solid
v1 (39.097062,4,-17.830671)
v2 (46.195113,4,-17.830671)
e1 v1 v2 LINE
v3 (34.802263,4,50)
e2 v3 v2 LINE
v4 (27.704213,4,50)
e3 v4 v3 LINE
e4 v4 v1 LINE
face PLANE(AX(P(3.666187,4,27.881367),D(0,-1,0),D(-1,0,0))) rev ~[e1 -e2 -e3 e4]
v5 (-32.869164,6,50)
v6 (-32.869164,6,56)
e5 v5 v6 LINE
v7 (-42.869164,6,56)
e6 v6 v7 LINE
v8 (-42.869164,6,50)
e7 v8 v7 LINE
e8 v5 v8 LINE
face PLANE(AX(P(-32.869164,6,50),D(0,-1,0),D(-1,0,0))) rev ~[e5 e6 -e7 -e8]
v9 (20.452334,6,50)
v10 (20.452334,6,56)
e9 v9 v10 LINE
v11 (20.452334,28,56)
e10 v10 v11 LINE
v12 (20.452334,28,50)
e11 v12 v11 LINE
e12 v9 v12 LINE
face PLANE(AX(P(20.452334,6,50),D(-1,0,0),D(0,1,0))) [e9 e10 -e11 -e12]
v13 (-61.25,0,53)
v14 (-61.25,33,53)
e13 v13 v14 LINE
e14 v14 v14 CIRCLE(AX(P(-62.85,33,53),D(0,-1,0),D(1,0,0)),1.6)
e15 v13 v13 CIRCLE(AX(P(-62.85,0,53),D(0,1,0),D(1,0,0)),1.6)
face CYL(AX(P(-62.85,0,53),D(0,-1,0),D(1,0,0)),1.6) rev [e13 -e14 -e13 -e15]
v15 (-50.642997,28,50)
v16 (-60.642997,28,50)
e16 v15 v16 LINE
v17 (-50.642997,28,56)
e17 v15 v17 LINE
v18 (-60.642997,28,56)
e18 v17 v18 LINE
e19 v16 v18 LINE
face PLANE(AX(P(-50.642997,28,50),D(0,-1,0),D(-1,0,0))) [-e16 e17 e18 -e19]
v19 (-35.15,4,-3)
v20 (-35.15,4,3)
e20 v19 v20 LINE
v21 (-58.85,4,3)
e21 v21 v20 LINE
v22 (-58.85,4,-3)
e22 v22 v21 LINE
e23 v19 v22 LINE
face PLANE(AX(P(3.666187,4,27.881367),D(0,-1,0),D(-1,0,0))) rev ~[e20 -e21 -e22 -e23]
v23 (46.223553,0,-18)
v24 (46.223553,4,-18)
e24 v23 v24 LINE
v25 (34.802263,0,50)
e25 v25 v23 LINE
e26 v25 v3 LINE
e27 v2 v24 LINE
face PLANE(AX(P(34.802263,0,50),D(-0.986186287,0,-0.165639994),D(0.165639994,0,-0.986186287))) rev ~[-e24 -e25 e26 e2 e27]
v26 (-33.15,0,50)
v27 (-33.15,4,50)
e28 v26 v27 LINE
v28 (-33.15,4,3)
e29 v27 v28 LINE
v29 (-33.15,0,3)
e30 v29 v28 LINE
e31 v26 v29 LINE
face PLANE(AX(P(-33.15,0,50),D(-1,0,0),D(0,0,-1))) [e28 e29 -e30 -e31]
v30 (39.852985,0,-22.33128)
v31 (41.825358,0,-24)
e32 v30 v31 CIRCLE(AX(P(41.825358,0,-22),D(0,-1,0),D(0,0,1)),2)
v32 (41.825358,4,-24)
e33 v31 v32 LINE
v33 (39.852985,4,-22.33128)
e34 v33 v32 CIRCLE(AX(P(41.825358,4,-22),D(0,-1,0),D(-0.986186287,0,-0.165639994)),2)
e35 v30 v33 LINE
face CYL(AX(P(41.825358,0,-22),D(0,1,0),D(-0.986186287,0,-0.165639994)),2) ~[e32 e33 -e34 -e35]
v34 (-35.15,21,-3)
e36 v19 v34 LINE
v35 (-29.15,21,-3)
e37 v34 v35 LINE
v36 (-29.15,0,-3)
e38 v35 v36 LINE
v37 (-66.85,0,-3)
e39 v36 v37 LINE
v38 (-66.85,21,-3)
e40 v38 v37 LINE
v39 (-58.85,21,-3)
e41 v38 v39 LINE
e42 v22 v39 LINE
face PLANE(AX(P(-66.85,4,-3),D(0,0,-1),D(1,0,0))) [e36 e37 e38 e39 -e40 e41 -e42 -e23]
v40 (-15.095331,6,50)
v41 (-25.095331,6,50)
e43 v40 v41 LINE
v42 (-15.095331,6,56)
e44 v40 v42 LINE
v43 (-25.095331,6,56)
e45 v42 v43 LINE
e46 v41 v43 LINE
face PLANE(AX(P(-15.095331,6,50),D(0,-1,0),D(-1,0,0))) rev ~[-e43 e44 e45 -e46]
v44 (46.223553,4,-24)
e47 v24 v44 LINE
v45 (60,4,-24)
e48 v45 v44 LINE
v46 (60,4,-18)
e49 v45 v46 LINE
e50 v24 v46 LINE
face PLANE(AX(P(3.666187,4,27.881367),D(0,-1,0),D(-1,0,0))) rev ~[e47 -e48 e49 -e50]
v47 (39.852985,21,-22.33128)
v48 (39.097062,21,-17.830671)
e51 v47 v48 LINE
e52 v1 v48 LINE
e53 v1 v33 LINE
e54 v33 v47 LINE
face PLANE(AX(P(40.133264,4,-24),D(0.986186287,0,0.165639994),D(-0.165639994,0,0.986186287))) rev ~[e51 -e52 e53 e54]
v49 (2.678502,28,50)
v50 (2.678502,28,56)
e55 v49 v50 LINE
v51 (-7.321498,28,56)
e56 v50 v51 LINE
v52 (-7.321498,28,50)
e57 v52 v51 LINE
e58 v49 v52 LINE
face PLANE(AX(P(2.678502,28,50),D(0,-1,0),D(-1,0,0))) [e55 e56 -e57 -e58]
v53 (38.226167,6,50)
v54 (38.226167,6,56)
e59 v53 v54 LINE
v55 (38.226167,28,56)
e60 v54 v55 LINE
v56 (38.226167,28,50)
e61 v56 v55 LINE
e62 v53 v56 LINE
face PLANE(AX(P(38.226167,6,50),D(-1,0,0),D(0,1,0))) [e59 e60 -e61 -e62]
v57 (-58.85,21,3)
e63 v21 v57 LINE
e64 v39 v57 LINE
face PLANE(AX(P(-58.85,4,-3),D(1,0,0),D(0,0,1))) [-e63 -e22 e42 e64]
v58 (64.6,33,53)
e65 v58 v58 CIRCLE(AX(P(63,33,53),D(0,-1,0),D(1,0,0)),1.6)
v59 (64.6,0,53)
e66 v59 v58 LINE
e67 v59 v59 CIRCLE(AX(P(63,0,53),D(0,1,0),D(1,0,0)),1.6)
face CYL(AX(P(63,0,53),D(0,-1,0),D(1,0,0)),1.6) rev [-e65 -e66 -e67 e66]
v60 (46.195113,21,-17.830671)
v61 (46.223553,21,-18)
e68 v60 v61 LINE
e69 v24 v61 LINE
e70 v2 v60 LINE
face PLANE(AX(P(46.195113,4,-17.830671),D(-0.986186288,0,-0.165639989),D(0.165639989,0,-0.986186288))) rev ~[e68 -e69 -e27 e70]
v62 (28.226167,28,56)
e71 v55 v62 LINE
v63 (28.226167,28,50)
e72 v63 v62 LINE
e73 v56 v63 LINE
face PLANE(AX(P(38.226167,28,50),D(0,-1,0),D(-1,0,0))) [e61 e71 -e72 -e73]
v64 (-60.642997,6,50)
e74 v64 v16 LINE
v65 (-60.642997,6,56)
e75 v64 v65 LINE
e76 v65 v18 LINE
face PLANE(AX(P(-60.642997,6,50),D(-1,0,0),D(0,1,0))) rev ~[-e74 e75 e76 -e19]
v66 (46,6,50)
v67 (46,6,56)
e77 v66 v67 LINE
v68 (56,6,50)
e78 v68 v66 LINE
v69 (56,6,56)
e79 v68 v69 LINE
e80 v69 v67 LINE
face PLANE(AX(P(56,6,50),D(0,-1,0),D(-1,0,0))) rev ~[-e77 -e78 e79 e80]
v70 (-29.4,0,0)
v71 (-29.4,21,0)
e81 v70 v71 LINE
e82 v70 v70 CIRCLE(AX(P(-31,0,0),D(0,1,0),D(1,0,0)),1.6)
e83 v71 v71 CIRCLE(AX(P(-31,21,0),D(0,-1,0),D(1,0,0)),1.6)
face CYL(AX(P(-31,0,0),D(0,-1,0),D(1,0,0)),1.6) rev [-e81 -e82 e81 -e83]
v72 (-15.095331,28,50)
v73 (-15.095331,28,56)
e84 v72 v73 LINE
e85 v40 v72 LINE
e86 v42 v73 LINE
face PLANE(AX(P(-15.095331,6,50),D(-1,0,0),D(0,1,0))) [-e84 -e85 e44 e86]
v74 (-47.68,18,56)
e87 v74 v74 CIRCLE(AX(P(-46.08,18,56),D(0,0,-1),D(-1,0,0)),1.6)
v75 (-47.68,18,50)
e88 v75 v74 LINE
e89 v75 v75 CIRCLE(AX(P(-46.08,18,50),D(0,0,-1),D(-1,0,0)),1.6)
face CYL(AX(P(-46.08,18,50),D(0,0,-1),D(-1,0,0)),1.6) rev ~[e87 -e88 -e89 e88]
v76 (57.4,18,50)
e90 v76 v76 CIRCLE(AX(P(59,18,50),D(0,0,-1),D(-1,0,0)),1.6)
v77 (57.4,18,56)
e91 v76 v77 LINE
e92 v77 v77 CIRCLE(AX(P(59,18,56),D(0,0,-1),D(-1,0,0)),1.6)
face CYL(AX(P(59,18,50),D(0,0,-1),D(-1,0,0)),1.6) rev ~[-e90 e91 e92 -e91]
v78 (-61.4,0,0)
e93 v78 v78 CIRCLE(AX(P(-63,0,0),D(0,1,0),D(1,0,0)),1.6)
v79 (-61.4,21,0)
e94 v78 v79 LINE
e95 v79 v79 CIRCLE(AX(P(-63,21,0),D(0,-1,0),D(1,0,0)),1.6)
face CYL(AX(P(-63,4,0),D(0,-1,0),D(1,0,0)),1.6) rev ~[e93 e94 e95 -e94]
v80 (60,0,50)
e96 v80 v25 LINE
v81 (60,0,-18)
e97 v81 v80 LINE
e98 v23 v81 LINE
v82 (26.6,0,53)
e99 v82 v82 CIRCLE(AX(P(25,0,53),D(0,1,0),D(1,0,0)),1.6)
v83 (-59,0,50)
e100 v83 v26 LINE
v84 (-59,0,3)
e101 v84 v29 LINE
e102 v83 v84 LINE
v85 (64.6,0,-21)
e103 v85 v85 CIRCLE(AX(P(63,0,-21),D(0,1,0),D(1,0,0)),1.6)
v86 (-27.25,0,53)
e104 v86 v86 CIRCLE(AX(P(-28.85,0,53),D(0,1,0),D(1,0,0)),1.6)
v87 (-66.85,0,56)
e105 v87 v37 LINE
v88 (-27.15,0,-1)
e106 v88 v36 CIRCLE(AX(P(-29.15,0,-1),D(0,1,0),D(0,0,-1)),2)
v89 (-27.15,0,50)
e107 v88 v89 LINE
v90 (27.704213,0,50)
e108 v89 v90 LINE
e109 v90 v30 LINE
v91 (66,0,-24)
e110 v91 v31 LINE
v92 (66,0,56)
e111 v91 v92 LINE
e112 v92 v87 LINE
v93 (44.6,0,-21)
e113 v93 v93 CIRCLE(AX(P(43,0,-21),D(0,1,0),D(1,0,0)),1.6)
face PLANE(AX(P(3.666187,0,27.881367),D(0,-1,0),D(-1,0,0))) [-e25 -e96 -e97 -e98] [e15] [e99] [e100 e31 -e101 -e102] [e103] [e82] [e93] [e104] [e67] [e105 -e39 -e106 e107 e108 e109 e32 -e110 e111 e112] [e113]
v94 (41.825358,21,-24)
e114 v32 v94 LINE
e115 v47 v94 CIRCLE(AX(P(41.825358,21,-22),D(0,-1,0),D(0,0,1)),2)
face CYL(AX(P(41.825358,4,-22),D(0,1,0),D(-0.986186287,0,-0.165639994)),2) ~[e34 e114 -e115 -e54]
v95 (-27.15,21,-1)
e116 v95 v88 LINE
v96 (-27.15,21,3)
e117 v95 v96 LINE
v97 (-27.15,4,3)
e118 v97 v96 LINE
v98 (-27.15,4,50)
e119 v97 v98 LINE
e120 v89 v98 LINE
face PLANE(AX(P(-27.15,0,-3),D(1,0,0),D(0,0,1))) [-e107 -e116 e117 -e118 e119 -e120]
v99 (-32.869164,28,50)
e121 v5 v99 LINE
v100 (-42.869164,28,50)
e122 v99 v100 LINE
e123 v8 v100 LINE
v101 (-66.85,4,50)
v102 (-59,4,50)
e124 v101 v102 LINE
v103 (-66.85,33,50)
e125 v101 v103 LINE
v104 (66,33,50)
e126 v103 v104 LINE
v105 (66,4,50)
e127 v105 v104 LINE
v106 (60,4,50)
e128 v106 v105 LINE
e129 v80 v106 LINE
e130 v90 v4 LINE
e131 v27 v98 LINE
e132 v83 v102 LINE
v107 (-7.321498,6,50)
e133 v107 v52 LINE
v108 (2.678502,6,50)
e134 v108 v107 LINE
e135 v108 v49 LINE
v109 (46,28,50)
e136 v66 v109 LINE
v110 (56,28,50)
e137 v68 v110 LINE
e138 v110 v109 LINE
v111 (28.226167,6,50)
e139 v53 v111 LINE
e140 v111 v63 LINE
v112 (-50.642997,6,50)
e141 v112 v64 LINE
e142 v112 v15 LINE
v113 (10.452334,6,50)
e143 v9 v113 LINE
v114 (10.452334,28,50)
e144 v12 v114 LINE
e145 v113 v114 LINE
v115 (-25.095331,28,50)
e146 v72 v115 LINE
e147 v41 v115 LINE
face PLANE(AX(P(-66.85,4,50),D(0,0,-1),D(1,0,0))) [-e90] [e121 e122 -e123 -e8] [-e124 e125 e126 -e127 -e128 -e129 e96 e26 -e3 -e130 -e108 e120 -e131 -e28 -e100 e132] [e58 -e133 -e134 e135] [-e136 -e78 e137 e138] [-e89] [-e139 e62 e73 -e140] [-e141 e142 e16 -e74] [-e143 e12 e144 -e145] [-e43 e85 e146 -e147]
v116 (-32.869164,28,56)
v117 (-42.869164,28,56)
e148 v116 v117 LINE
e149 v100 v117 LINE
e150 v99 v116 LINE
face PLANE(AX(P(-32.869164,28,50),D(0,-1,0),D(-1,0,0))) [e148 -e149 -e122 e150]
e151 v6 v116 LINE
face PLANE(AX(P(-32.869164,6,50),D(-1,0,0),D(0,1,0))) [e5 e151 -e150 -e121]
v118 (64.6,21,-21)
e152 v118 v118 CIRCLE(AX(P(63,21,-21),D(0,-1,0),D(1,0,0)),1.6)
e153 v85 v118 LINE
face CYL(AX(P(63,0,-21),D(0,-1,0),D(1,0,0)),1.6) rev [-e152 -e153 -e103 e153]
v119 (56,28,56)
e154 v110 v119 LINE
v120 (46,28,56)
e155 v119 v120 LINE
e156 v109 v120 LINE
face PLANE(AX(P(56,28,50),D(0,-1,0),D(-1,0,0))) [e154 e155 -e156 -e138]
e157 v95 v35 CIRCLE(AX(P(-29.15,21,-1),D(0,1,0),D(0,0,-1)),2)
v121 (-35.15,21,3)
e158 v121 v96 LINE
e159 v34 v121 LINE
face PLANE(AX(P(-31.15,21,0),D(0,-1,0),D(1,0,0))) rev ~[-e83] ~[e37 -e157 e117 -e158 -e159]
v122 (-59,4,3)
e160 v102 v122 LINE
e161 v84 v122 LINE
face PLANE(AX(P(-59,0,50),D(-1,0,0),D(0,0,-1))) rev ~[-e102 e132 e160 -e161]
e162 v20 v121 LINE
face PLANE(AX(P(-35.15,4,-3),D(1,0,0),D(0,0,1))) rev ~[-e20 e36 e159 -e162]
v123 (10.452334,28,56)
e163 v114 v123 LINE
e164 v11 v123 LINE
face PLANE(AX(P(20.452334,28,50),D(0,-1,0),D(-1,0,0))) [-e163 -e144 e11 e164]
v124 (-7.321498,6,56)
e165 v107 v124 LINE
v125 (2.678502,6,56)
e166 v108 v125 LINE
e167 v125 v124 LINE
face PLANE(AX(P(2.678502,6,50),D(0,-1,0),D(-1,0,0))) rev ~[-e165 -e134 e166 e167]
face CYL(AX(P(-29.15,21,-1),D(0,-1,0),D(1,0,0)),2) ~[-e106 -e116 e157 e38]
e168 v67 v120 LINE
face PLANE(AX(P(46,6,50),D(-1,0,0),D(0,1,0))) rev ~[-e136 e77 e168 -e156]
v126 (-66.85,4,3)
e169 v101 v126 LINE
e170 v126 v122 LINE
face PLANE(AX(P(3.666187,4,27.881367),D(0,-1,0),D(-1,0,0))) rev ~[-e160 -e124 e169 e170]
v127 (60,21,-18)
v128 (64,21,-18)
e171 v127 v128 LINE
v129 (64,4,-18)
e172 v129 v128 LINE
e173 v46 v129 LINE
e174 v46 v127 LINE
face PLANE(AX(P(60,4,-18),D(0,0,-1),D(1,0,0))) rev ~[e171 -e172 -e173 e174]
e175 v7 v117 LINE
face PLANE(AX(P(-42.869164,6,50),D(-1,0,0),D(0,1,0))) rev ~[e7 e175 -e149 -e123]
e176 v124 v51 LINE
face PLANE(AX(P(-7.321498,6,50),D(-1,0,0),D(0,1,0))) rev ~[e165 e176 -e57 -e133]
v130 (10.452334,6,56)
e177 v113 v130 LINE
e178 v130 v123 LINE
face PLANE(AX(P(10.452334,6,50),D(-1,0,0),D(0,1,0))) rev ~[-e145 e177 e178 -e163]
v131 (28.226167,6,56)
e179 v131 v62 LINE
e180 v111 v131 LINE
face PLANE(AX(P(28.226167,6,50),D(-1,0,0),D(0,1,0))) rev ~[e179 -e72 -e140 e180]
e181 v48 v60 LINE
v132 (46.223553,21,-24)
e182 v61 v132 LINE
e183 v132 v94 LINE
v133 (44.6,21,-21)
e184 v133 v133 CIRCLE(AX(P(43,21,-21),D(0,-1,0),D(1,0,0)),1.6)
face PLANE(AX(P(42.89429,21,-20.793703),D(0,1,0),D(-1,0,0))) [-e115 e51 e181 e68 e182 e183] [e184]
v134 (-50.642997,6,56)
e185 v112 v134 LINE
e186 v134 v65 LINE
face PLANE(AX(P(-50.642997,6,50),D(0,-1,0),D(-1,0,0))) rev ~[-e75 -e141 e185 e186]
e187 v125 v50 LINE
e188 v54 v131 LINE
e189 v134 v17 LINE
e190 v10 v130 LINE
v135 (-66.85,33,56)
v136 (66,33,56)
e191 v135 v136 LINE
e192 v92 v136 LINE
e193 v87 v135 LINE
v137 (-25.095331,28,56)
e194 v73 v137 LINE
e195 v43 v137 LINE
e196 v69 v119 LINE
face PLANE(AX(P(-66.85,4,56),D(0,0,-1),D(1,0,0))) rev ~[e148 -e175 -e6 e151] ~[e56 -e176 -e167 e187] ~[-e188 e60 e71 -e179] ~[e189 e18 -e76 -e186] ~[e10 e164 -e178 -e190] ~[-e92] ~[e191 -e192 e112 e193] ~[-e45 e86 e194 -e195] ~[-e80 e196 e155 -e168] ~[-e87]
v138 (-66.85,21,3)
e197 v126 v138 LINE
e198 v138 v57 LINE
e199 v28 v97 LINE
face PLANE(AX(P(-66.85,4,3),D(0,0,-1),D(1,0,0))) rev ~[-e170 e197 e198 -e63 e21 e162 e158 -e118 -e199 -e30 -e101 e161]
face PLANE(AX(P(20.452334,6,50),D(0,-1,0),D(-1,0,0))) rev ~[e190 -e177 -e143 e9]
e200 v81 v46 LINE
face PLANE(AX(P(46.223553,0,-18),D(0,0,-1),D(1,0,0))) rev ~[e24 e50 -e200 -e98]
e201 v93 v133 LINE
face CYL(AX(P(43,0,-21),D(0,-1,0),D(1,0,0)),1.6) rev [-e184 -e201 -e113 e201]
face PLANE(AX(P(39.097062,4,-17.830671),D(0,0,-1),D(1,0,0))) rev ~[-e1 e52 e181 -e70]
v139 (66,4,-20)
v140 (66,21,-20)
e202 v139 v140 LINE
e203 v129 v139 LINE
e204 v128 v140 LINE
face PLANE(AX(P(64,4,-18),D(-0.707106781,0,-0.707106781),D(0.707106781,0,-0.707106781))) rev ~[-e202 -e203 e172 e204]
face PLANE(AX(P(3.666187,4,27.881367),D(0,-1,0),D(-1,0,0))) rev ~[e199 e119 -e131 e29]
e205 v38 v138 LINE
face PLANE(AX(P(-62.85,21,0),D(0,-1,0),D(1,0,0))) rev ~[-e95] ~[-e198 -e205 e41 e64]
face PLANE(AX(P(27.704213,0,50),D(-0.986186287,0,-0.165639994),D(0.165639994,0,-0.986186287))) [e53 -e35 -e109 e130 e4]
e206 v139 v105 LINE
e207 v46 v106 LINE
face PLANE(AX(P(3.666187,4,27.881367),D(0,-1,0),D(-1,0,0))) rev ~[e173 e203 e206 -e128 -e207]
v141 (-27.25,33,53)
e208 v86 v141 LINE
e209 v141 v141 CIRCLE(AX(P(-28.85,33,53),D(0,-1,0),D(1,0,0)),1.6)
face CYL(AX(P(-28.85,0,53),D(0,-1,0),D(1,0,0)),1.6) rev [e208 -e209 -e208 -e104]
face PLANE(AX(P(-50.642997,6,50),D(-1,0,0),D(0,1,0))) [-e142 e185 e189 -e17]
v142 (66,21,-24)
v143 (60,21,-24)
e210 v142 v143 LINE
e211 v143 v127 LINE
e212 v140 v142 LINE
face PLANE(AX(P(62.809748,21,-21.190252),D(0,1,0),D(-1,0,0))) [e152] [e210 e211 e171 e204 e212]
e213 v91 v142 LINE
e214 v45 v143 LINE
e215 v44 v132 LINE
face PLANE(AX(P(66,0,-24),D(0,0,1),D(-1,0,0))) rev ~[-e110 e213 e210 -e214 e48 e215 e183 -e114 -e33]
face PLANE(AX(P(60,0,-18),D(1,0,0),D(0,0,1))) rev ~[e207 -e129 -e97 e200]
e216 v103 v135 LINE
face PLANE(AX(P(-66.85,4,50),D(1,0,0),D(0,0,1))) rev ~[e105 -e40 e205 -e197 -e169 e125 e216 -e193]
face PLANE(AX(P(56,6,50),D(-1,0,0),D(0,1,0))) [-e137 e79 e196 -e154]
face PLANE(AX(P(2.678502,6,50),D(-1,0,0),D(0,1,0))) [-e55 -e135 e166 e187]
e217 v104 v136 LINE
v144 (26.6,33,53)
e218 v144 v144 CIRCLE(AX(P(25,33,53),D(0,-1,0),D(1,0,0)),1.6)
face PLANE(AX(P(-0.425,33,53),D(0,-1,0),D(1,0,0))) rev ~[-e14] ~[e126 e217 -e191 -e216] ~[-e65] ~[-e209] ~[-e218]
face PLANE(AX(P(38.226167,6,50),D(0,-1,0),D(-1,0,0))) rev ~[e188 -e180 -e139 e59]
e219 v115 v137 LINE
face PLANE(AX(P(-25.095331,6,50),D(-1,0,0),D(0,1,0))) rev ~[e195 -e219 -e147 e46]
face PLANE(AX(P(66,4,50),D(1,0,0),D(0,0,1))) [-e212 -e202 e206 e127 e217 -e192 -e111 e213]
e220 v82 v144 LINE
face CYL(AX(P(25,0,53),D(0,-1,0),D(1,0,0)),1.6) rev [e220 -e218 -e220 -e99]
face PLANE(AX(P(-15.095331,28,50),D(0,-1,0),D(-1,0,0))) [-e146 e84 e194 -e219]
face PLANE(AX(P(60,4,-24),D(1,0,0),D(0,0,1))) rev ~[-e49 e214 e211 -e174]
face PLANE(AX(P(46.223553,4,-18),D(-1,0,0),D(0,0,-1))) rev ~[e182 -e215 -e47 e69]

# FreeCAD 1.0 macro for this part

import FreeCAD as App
import Part
import Sketcher

V = App.Vector
Q = App.Units.Quantity


def edges_at(feature, points):
    """Names of the edges that pass closest to the given points."""
    edges = feature.Shape.Edges
    near = lambda p: min(range(len(edges)), key=lambda i: edges[i].distToShape(Part.Vertex(*p))[0])
    return sorted({f"Edge{near(p) + 1}" for p in points})

doc = App.newDocument("Part")
body = doc.addObject("PartDesign::Body", "Body")

# Sketch on XZ plane
sketch1 = body.newObject("Sketcher::SketchObject", "Sketch")
sketch1.AttachmentSupport = (doc.getObject("XZ_Plane"), [""])
sketch1.MapMode = "FlatFace"
sketch1.addGeometry(Part.LineSegment(V(66, 56, 0), V(66, -24, 0)), False)
sketch1.addGeometry(Part.LineSegment(V(66, -24, 0), V(40.1, -24, 0)), False)
sketch1.addGeometry(Part.LineSegment(V(40.1, -24, 0), V(27.7, 50, 0)), False)
sketch1.addGeometry(Part.LineSegment(V(27.7, 50, 0), V(-27.1, 50, 0)), False)
sketch1.addGeometry(Part.LineSegment(V(-27.1, 50, 0), V(-27.1, -3, 0)), False)
sketch1.addGeometry(Part.LineSegment(V(-27.1, -3, 0), V(-66.8, -3, 0)), False)
sketch1.addGeometry(Part.LineSegment(V(-66.8, -3, 0), V(-66.8, 56, 0)), False)
sketch1.addGeometry(Part.LineSegment(V(-66.8, 56, 0), V(66, 56, 0)), False)
sketch1.addGeometry(Part.LineSegment(V(60, -18, 0), V(60, 50, 0)), False)
sketch1.addGeometry(Part.LineSegment(V(60, 50, 0), V(34.8, 50, 0)), False)
sketch1.addGeometry(Part.LineSegment(V(34.8, 50, 0), V(46.2, -18, 0)), False)
sketch1.addGeometry(Part.LineSegment(V(46.2, -18, 0), V(60, -18, 0)), False)
sketch1.addGeometry(Part.LineSegment(V(-59, 50, 0), V(-59, 3, 0)), False)
sketch1.addGeometry(Part.LineSegment(V(-59, 3, 0), V(-33.1, 3, 0)), False)
sketch1.addGeometry(Part.LineSegment(V(-33.1, 3, 0), V(-33.1, 50, 0)), False)
sketch1.addGeometry(Part.LineSegment(V(-33.1, 50, 0), V(-59, 50, 0)), False)
sketch1.addGeometry(Part.Circle(V(63, -21, 0), V(0, 0, 1), 1.6), False)
sketch1.addGeometry(Part.Circle(V(43, -21, 0), V(0, 0, 1), 1.6), False)
sketch1.addGeometry(Part.Circle(V(-31, 0, 0), V(0, 0, 1), 1.6), False)
sketch1.addGeometry(Part.Circle(V(-63, 0, 0), V(0, 0, 1), 1.6), False)
sketch1.addConstraint(Sketcher.Constraint("Coincident", 0, 2, 1, 1))
sketch1.addConstraint(Sketcher.Constraint("Coincident", 1, 2, 2, 1))
sketch1.addConstraint(Sketcher.Constraint("Coincident", 2, 2, 3, 1))
sketch1.addConstraint(Sketcher.Constraint("Coincident", 3, 2, 4, 1))
sketch1.addConstraint(Sketcher.Constraint("Coincident", 4, 2, 5, 1))
sketch1.addConstraint(Sketcher.Constraint("Coincident", 5, 2, 6, 1))
sketch1.addConstraint(Sketcher.Constraint("Coincident", 6, 2, 7, 1))
sketch1.addConstraint(Sketcher.Constraint("Coincident", 7, 2, 0, 1))
sketch1.addConstraint(Sketcher.Constraint("Coincident", 8, 2, 9, 1))
sketch1.addConstraint(Sketcher.Constraint("Coincident", 9, 2, 10, 1))
sketch1.addConstraint(Sketcher.Constraint("Coincident", 10, 2, 11, 1))
sketch1.addConstraint(Sketcher.Constraint("Coincident", 11, 2, 8, 1))
sketch1.addConstraint(Sketcher.Constraint("Coincident", 12, 2, 13, 1))
sketch1.addConstraint(Sketcher.Constraint("Coincident", 13, 2, 14, 1))
sketch1.addConstraint(Sketcher.Constraint("Coincident", 14, 2, 15, 1))
sketch1.addConstraint(Sketcher.Constraint("Coincident", 15, 2, 12, 1))
sketch1.addConstraint(Sketcher.Constraint("Vertical", 0))
sketch1.addConstraint(Sketcher.Constraint("Horizontal", 1))
sketch1.addConstraint(Sketcher.Constraint("Horizontal", 3))
sketch1.addConstraint(Sketcher.Constraint("Vertical", 4))
sketch1.addConstraint(Sketcher.Constraint("Horizontal", 5))
sketch1.addConstraint(Sketcher.Constraint("Vertical", 6))
sketch1.addConstraint(Sketcher.Constraint("Horizontal", 7))
sketch1.addConstraint(Sketcher.Constraint("Vertical", 8))
sketch1.addConstraint(Sketcher.Constraint("Horizontal", 9))
sketch1.addConstraint(Sketcher.Constraint("Horizontal", 11))
sketch1.addConstraint(Sketcher.Constraint("Vertical", 12))
sketch1.addConstraint(Sketcher.Constraint("Horizontal", 13))
sketch1.addConstraint(Sketcher.Constraint("Vertical", 14))
sketch1.addConstraint(Sketcher.Constraint("Horizontal", 15))
sketch1.addConstraint(Sketcher.Constraint("Equal", 16, 17))
sketch1.addConstraint(Sketcher.Constraint("Equal", 17, 18))
sketch1.addConstraint(Sketcher.Constraint("Equal", 18, 19))
sketch1.addConstraint(Sketcher.Constraint("PointOnObject", 18, 3, -1))
sketch1.addConstraint(Sketcher.Constraint("PointOnObject", 19, 3, -1))
sketch1.addConstraint(Sketcher.Constraint("Parallel", 2, 10))
sketch1.addConstraint(Sketcher.Constraint("Horizontal", 16, 3, 17, 3))
sketch1.addConstraint(Sketcher.Constraint("Horizontal", 3, 2, 8, 2))
sketch1.addConstraint(Sketcher.Constraint("Horizontal", 9, 2, 14, 2))
sketch1.addConstraint(Sketcher.Constraint("Diameter", 16, Q("3.2 mm")))
sketch1.addConstraint(Sketcher.Constraint("DistanceY", 0, 2, 0, 1, Q("80 mm")))
sketch1.addConstraint(Sketcher.Constraint("DistanceY", 4, 2, 4, 1, Q("53 mm")))
sketch1.addConstraint(Sketcher.Constraint("DistanceY", 6, 1, 6, 2, Q("59 mm")))
sketch1.addConstraint(Sketcher.Constraint("DistanceY", 8, 1, 8, 2, Q("68 mm")))
sketch1.addConstraint(Sketcher.Constraint("DistanceY", 12, 2, 12, 1, Q("47 mm")))
sketch1.addConstraint(Sketcher.Constraint("DistanceX", 5, 2, 5, 1, Q("39.7 mm")))
sketch1.addConstraint(Sketcher.Constraint("DistanceX", -1, 1, 16, 3, Q("63 mm")))
sketch1.addConstraint(Sketcher.Constraint("DistanceY", 16, 3, -1, 1, Q("21 mm")))
sketch1.addConstraint(Sketcher.Constraint("DistanceX", -1, 1, 17, 3, Q("43 mm")))
sketch1.addConstraint(Sketcher.Constraint("DistanceX", 18, 3, -1, 1, Q("31 mm")))
sketch1.addConstraint(Sketcher.Constraint("DistanceX", 19, 3, -1, 1, Q("63 mm")))
sketch1.addConstraint(Sketcher.Constraint("DistanceX", -1, 1, 0, 2, Q("66 mm")))
sketch1.addConstraint(Sketcher.Constraint("DistanceY", 0, 2, -1, 1, Q("24 mm")))
sketch1.addConstraint(Sketcher.Constraint("DistanceX", -1, 1, 8, 2, Q("60 mm")))
sketch1.addConstraint(Sketcher.Constraint("DistanceX", 12, 2, -1, 1, Q("59 mm")))
sketch1.addConstraint(Sketcher.Constraint("DistanceX", 13, 2, 4, 2, Q("6 mm")))
sketch1.addConstraint(Sketcher.Constraint("DistanceX", 7, 1, 7, 2, Q("132.85 mm")))
sketch1.addConstraint(Sketcher.Constraint("Distance", 10, Q("68.95249 mm")))
sketch1.addConstraint(Sketcher.Constraint("DistanceX", 1, 2, 1, 1, Q("25.866736 mm")))
sketch1.addConstraint(Sketcher.Constraint("DistanceX", 9, 2, 9, 1, Q("25.197737 mm")))
pad1 = body.newObject("PartDesign::Pad", "Pad")
pad1.Profile = sketch1
pad1.Length = 4
pad1.Reversed = True

# Sketch on XZ plane
sketch2 = body.newObject("Sketcher::SketchObject", "Sketch001")
sketch2.AttachmentSupport = (doc.getObject("XZ_Plane"), [""])
sketch2.MapMode = "FlatFace"
sketch2.AttachmentOffset = App.Placement(V(0, 0, -4), App.Rotation())
sketch2.addGeometry(Part.LineSegment(V(-66.85, 3, 0), V(-66.85, -3, 0)), False)
sketch2.addGeometry(Part.LineSegment(V(-66.85, -3, 0), V(-58.85, -3, 0)), False)
sketch2.addGeometry(Part.LineSegment(V(-58.85, -3, 0), V(-58.85, 3, 0)), False)
sketch2.addGeometry(Part.LineSegment(V(-58.85, 3, 0), V(-66.85, 3, 0)), False)
sketch2.addGeometry(Part.Circle(V(-63, 0, 0), V(0, 0, 1), 1.6), False)
sketch2.addGeometry(Part.LineSegment(V(66, -24, 0), V(66, -20, 0)), False)
sketch2.addGeometry(Part.LineSegment(V(66, -20, 0), V(64, -18, 0)), False)
sketch2.addGeometry(Part.LineSegment(V(64, -18, 0), V(60, -18, 0)), False)
sketch2.addGeometry(Part.LineSegment(V(60, -18, 0), V(60, -24, 0)), False)
sketch2.addGeometry(Part.LineSegment(V(60, -24, 0), V(66, -24, 0)), False)
sketch2.addGeometry(Part.Circle(V(63, -21, 0), V(0, 0, 1), 1.6), False)
sketch2.addGeometry(Part.LineSegment(V(-35.15, 3, 0), V(-35.15, -3, 0)), False)
sketch2.addGeometry(Part.LineSegment(V(-35.15, -3, 0), V(-27.15, -3, 0)), False)
sketch2.addGeometry(Part.LineSegment(V(-27.15, -3, 0), V(-27.15, 3, 0)), False)
sketch2.addGeometry(Part.LineSegment(V(-27.15, 3, 0), V(-35.15, 3, 0)), False)
sketch2.addGeometry(Part.Circle(V(-31, 0, 0), V(0, 0, 1), 1.6), False)
sketch2.addGeometry(Part.LineSegment(V(46.22, -24, 0), V(46.22, -18, 0)), False)
sketch2.addGeometry(Part.LineSegment(V(46.22, -18, 0), V(46.2, -17.83, 0)), False)
sketch2.addGeometry(Part.LineSegment(V(46.2, -17.83, 0), V(39.1, -17.83, 0)), False)
sketch2.addGeometry(Part.LineSegment(V(39.1, -17.83, 0), V(40.13, -24, 0)), False)
sketch2.addGeometry(Part.LineSegment(V(40.13, -24, 0), V(46.22, -24, 0)), False)
sketch2.addGeometry(Part.Circle(V(43, -21, 0), V(0, 0, 1), 1.6), False)
sketch2.addConstraint(Sketcher.Constraint("Coincident", 0, 2, 1, 1))
sketch2.addConstraint(Sketcher.Constraint("Coincident", 1, 2, 2, 1))
sketch2.addConstraint(Sketcher.Constraint("Coincident", 2, 2, 3, 1))
sketch2.addConstraint(Sketcher.Constraint("Coincident", 3, 2, 0, 1))
sketch2.addConstraint(Sketcher.Constraint("Coincident", 5, 2, 6, 1))
sketch2.addConstraint(Sketcher.Constraint("Coincident", 6, 2, 7, 1))
sketch2.addConstraint(Sketcher.Constraint("Coincident", 7, 2, 8, 1))
sketch2.addConstraint(Sketcher.Constraint("Coincident", 8, 2, 9, 1))
sketch2.addConstraint(Sketcher.Constraint("Coincident", 9, 2, 5, 1))
sketch2.addConstraint(Sketcher.Constraint("Coincident", 11, 2, 12, 1))
sketch2.addConstraint(Sketcher.Constraint("Coincident", 12, 2, 13, 1))
sketch2.addConstraint(Sketcher.Constraint("Coincident", 13, 2, 14, 1))
sketch2.addConstraint(Sketcher.Constraint("Coincident", 14, 2, 11, 1))
sketch2.addConstraint(Sketcher.Constraint("Coincident", 16, 2, 17, 1))
sketch2.addConstraint(Sketcher.Constraint("Coincident", 17, 2, 18, 1))
sketch2.addConstraint(Sketcher.Constraint("Coincident", 18, 2, 19, 1))
sketch2.addConstraint(Sketcher.Constraint("Coincident", 19, 2, 20, 1))
sketch2.addConstraint(Sketcher.Constraint("Coincident", 20, 2, 16, 1))
sketch2.addConstraint(Sketcher.Constraint("Vertical", 0))
sketch2.addConstraint(Sketcher.Constraint("Horizontal", 1))
sketch2.addConstraint(Sketcher.Constraint("Vertical", 2))
sketch2.addConstraint(Sketcher.Constraint("Horizontal", 3))
sketch2.addConstraint(Sketcher.Constraint("Vertical", 5))
sketch2.addConstraint(Sketcher.Constraint("Horizontal", 7))
sketch2.addConstraint(Sketcher.Constraint("Vertical", 8))
sketch2.addConstraint(Sketcher.Constraint("Horizontal", 9))
sketch2.addConstraint(Sketcher.Constraint("Vertical", 11))
sketch2.addConstraint(Sketcher.Constraint("Horizontal", 12))
sketch2.addConstraint(Sketcher.Constraint("Vertical", 13))
sketch2.addConstraint(Sketcher.Constraint("Horizontal", 14))
sketch2.addConstraint(Sketcher.Constraint("Vertical", 16))
sketch2.addConstraint(Sketcher.Constraint("Horizontal", 18))
sketch2.addConstraint(Sketcher.Constraint("Horizontal", 20))
sketch2.addConstraint(Sketcher.Constraint("Equal", 4, 10))
sketch2.addConstraint(Sketcher.Constraint("Equal", 10, 15))
sketch2.addConstraint(Sketcher.Constraint("Equal", 15, 21))
sketch2.addConstraint(Sketcher.Constraint("PointOnObject", 4, 3, -1))
sketch2.addConstraint(Sketcher.Constraint("PointOnObject", 15, 3, -1))
sketch2.addConstraint(Sketcher.Constraint("Parallel", 17, 19))
sketch2.addConstraint(Sketcher.Constraint("Horizontal", 10, 3, 21, 3))
sketch2.addConstraint(Sketcher.Constraint("Horizontal", 1, 2, 11, 2))
sketch2.addConstraint(Sketcher.Constraint("Horizontal", 3, 2, 13, 2))
sketch2.addConstraint(Sketcher.Constraint("Horizontal", 7, 2, 16, 2))
sketch2.addConstraint(Sketcher.Constraint("Horizontal", 9, 2, 19, 2))
sketch2.addConstraint(Sketcher.Constraint("Equal", 3, 12))
sketch2.addConstraint(Sketcher.Constraint("Equal", 9, 0))
sketch2.addConstraint(Sketcher.Constraint("Equal", 7, 5))
sketch2.addConstraint(Sketcher.Constraint("Equal", 2, 8))
sketch2.addConstraint(Sketcher.Constraint("Diameter", 4, Q("3.2 mm")))
sketch2.addConstraint(Sketcher.Constraint("DistanceX", 1, 1, 1, 2, Q("8 mm")))
sketch2.addConstraint(Sketcher.Constraint("DistanceX", 7, 2, 7, 1, Q("4 mm")))
sketch2.addConstraint(Sketcher.Constraint("DistanceX", 9, 1, 9, 2, Q("6 mm")))
sketch2.addConstraint(Sketcher.Constraint("DistanceX", 4, 3, -1, 1, Q("63 mm")))
sketch2.addConstraint(Sketcher.Constraint("DistanceX", -1, 1, 10, 3, Q("63 mm")))
sketch2.addConstraint(Sketcher.Constraint("DistanceY", 10, 3, -1, 1, Q("21 mm")))
sketch2.addConstraint(Sketcher.Constraint("DistanceX", 15, 3, -1, 1, Q("31 mm")))
sketch2.addConstraint(Sketcher.Constraint("DistanceX", -1, 1, 21, 3, Q("43 mm")))
sketch2.addConstraint(Sketcher.Constraint("DistanceY", 0, 2, -1, 1, Q("3 mm")))
sketch2.addConstraint(Sketcher.Constraint("DistanceX", -1, 1, 5, 2, Q("66 mm")))
sketch2.addConstraint(Sketcher.Constraint("DistanceY", 5, 2, -1, 1, Q("20 mm")))
sketch2.addConstraint(Sketcher.Constraint("DistanceX", 1, 2, 11, 2, Q("23.7 mm")))
sketch2.addConstraint(Sketcher.Constraint("DistanceX", 0, 2, -1, 1, Q("66.85 mm")))
sketch2.addConstraint(Sketcher.Constraint("Distance", 17, Q("0.171701 mm")))
sketch2.addConstraint(Sketcher.Constraint("DistanceX", 18, 2, 18, 1, Q("7.09805 mm")))
sketch2.addConstraint(Sketcher.Constraint("DistanceX", 20, 1, 20, 2, Q("6.09029 mm")))
sketch2.addConstraint(Sketcher.Constraint("DistanceX", -1, 1, 16, 2, Q("46.223553 mm")))
pad2 = body.newObject("PartDesign::Pad", "Pad001")
pad2.Profile = sketch2
pad2.Length = 17
pad2.Reversed = True
doc.recompute()

fillet = body.newObject("PartDesign::Fillet", "Fillet")
fillet.Base = (pad2, edges_at(pad2, [(-27.15, 10.5, -3), (40.133, 12.5, -24)]))
fillet.Radius = 2

# Sketch on XZ plane
sketch3 = body.newObject("Sketcher::SketchObject", "Sketch002")
sketch3.AttachmentSupport = (doc.getObject("XZ_Plane"), [""])
sketch3.MapMode = "FlatFace"
sketch3.AttachmentOffset = App.Placement(V(0, 0, -4), App.Rotation())
sketch3.addGeometry(Part.LineSegment(V(-67, 56, 0), V(-67, 50, 0)), False)
sketch3.addGeometry(Part.LineSegment(V(-67, 50, 0), V(66, 50, 0)), False)
sketch3.addGeometry(Part.LineSegment(V(66, 50, 0), V(66, 56, 0)), False)
sketch3.addGeometry(Part.LineSegment(V(66, 56, 0), V(-67, 56, 0)), False)
sketch3.addConstraint(Sketcher.Constraint("Coincident", 0, 2, 1, 1))
sketch3.addConstraint(Sketcher.Constraint("Coincident", 1, 2, 2, 1))
sketch3.addConstraint(Sketcher.Constraint("Coincident", 2, 2, 3, 1))
sketch3.addConstraint(Sketcher.Constraint("Coincident", 3, 2, 0, 1))
sketch3.addConstraint(Sketcher.Constraint("Vertical", 0))
sketch3.addConstraint(Sketcher.Constraint("Horizontal", 1))
sketch3.addConstraint(Sketcher.Constraint("Vertical", 2))
sketch3.addConstraint(Sketcher.Constraint("Horizontal", 3))
sketch3.addConstraint(Sketcher.Constraint("DistanceY", 0, 2, 0, 1, Q("6 mm")))
sketch3.addConstraint(Sketcher.Constraint("DistanceY", -1, 1, 0, 2, Q("50 mm")))
sketch3.addConstraint(Sketcher.Constraint("DistanceX", -1, 1, 1, 2, Q("66 mm")))
sketch3.addConstraint(Sketcher.Constraint("DistanceX", 1, 1, 1, 2, Q("132.85 mm")))
pad3 = body.newObject("PartDesign::Pad", "Pad002")
pad3.Profile = sketch3
pad3.Length = 29
pad3.Reversed = True

# Sketch on XY plane
sketch4 = body.newObject("Sketcher::SketchObject", "Sketch003")
sketch4.AttachmentSupport = (doc.getObject("XY_Plane"), [""])
sketch4.MapMode = "FlatFace"
sketch4.AttachmentOffset = App.Placement(V(0, 0, 50), App.Rotation())
sketch4.addGeometry(Part.LineSegment(V(-15, 28, 0), V(-15, 6, 0)), False)
sketch4.addGeometry(Part.LineSegment(V(-15, 6, 0), V(-25, 6, 0)), False)
sketch4.addGeometry(Part.LineSegment(V(-25, 6, 0), V(-25, 28, 0)), False)
sketch4.addGeometry(Part.LineSegment(V(-25, 28, 0), V(-15, 28, 0)), False)
sketch4.addGeometry(Part.LineSegment(V(3, 28, 0), V(3, 6, 0)), False)
sketch4.addGeometry(Part.LineSegment(V(3, 6, 0), V(-7, 6, 0)), False)
sketch4.addGeometry(Part.LineSegment(V(-7, 6, 0), V(-7, 28, 0)), False)
sketch4.addGeometry(Part.LineSegment(V(-7, 28, 0), V(3, 28, 0)), False)
sketch4.addGeometry(Part.LineSegment(V(20, 28, 0), V(20, 6, 0)), False)
sketch4.addGeometry(Part.LineSegment(V(20, 6, 0), V(10, 6, 0)), False)
sketch4.addGeometry(Part.LineSegment(V(10, 6, 0), V(10, 28, 0)), False)
sketch4.addGeometry(Part.LineSegment(V(10, 28, 0), V(20, 28, 0)), False)
sketch4.addGeometry(Part.LineSegment(V(38, 28, 0), V(38, 6, 0)), False)
sketch4.addGeometry(Part.LineSegment(V(38, 6, 0), V(28, 6, 0)), False)
sketch4.addGeometry(Part.LineSegment(V(28, 6, 0), V(28, 28, 0)), False)
sketch4.addGeometry(Part.LineSegment(V(28, 28, 0), V(38, 28, 0)), False)
sketch4.addGeometry(Part.LineSegment(V(56, 28, 0), V(56, 6, 0)), False)
sketch4.addGeometry(Part.LineSegment(V(56, 6, 0), V(46, 6, 0)), False)
sketch4.addGeometry(Part.LineSegment(V(46, 6, 0), V(46, 28, 0)), False)
sketch4.addGeometry(Part.LineSegment(V(46, 28, 0), V(56, 28, 0)), False)
sketch4.addGeometry(Part.LineSegment(V(-33, 28, 0), V(-33, 6, 0)), False)
sketch4.addGeometry(Part.LineSegment(V(-33, 6, 0), V(-43, 6, 0)), False)
sketch4.addGeometry(Part.LineSegment(V(-43, 6, 0), V(-43, 28, 0)), False)
sketch4.addGeometry(Part.LineSegment(V(-43, 28, 0), V(-33, 28, 0)), False)
sketch4.addGeometry(Part.LineSegment(V(-51, 28, 0), V(-51, 6, 0)), False)
sketch4.addGeometry(Part.LineSegment(V(-51, 6, 0), V(-61, 6, 0)), False)
sketch4.addGeometry(Part.LineSegment(V(-61, 6, 0), V(-61, 28, 0)), False)
sketch4.addGeometry(Part.LineSegment(V(-61, 28, 0), V(-51, 28, 0)), False)
sketch4.addConstraint(Sketcher.Constraint("Coincident", 0, 2, 1, 1))
sketch4.addConstraint(Sketcher.Constraint("Coincident", 1, 2, 2, 1))
sketch4.addConstraint(Sketcher.Constraint("Coincident", 2, 2, 3, 1))
sketch4.addConstraint(Sketcher.Constraint("Coincident", 3, 2, 0, 1))
sketch4.addConstraint(Sketcher.Constraint("Coincident", 4, 2, 5, 1))
sketch4.addConstraint(Sketcher.Constraint("Coincident", 5, 2, 6, 1))
sketch4.addConstraint(Sketcher.Constraint("Coincident", 6, 2, 7, 1))
sketch4.addConstraint(Sketcher.Constraint("Coincident", 7, 2, 4, 1))
sketch4.addConstraint(Sketcher.Constraint("Coincident", 8, 2, 9, 1))
sketch4.addConstraint(Sketcher.Constraint("Coincident", 9, 2, 10, 1))
sketch4.addConstraint(Sketcher.Constraint("Coincident", 10, 2, 11, 1))
sketch4.addConstraint(Sketcher.Constraint("Coincident", 11, 2, 8, 1))
sketch4.addConstraint(Sketcher.Constraint("Coincident", 12, 2, 13, 1))
sketch4.addConstraint(Sketcher.Constraint("Coincident", 13, 2, 14, 1))
sketch4.addConstraint(Sketcher.Constraint("Coincident", 14, 2, 15, 1))
sketch4.addConstraint(Sketcher.Constraint("Coincident", 15, 2, 12, 1))
sketch4.addConstraint(Sketcher.Constraint("Coincident", 16, 2, 17, 1))
sketch4.addConstraint(Sketcher.Constraint("Coincident", 17, 2, 18, 1))
sketch4.addConstraint(Sketcher.Constraint("Coincident", 18, 2, 19, 1))
sketch4.addConstraint(Sketcher.Constraint("Coincident", 19, 2, 16, 1))
sketch4.addConstraint(Sketcher.Constraint("Coincident", 20, 2, 21, 1))
sketch4.addConstraint(Sketcher.Constraint("Coincident", 21, 2, 22, 1))
sketch4.addConstraint(Sketcher.Constraint("Coincident", 22, 2, 23, 1))
sketch4.addConstraint(Sketcher.Constraint("Coincident", 23, 2, 20, 1))
sketch4.addConstraint(Sketcher.Constraint("Coincident", 24, 2, 25, 1))
sketch4.addConstraint(Sketcher.Constraint("Coincident", 25, 2, 26, 1))
sketch4.addConstraint(Sketcher.Constraint("Coincident", 26, 2, 27, 1))
sketch4.addConstraint(Sketcher.Constraint("Coincident", 27, 2, 24, 1))
sketch4.addConstraint(Sketcher.Constraint("Vertical", 0))
sketch4.addConstraint(Sketcher.Constraint("Horizontal", 1))
sketch4.addConstraint(Sketcher.Constraint("Vertical", 2))
sketch4.addConstraint(Sketcher.Constraint("Horizontal", 3))
sketch4.addConstraint(Sketcher.Constraint("Vertical", 4))
sketch4.addConstraint(Sketcher.Constraint("Horizontal", 5))
sketch4.addConstraint(Sketcher.Constraint("Vertical", 6))
sketch4.addConstraint(Sketcher.Constraint("Horizontal", 7))
sketch4.addConstraint(Sketcher.Constraint("Vertical", 8))
sketch4.addConstraint(Sketcher.Constraint("Horizontal", 9))
sketch4.addConstraint(Sketcher.Constraint("Vertical", 10))
sketch4.addConstraint(Sketcher.Constraint("Horizontal", 11))
sketch4.addConstraint(Sketcher.Constraint("Vertical", 12))
sketch4.addConstraint(Sketcher.Constraint("Horizontal", 13))
sketch4.addConstraint(Sketcher.Constraint("Vertical", 14))
sketch4.addConstraint(Sketcher.Constraint("Horizontal", 15))
sketch4.addConstraint(Sketcher.Constraint("Vertical", 16))
sketch4.addConstraint(Sketcher.Constraint("Horizontal", 17))
sketch4.addConstraint(Sketcher.Constraint("Vertical", 18))
sketch4.addConstraint(Sketcher.Constraint("Horizontal", 19))
sketch4.addConstraint(Sketcher.Constraint("Vertical", 20))
sketch4.addConstraint(Sketcher.Constraint("Horizontal", 21))
sketch4.addConstraint(Sketcher.Constraint("Vertical", 22))
sketch4.addConstraint(Sketcher.Constraint("Horizontal", 23))
sketch4.addConstraint(Sketcher.Constraint("Vertical", 24))
sketch4.addConstraint(Sketcher.Constraint("Horizontal", 25))
sketch4.addConstraint(Sketcher.Constraint("Vertical", 26))
sketch4.addConstraint(Sketcher.Constraint("Horizontal", 27))
sketch4.addConstraint(Sketcher.Constraint("Horizontal", 1, 2, 4, 2))
sketch4.addConstraint(Sketcher.Constraint("Horizontal", 3, 2, 6, 2))
sketch4.addConstraint(Sketcher.Constraint("Horizontal", 5, 2, 8, 2))
sketch4.addConstraint(Sketcher.Constraint("Horizontal", 7, 2, 10, 2))
sketch4.addConstraint(Sketcher.Constraint("Horizontal", 9, 2, 12, 2))
sketch4.addConstraint(Sketcher.Constraint("Horizontal", 11, 2, 14, 2))
sketch4.addConstraint(Sketcher.Constraint("Horizontal", 13, 2, 16, 2))
sketch4.addConstraint(Sketcher.Constraint("Horizontal", 15, 2, 18, 2))
sketch4.addConstraint(Sketcher.Constraint("Horizontal", 17, 2, 20, 2))
sketch4.addConstraint(Sketcher.Constraint("Horizontal", 19, 2, 22, 2))
sketch4.addConstraint(Sketcher.Constraint("Horizontal", 21, 2, 24, 2))
sketch4.addConstraint(Sketcher.Constraint("Horizontal", 23, 2, 26, 2))
sketch4.addConstraint(Sketcher.Constraint("Equal", 3, 5))
sketch4.addConstraint(Sketcher.Constraint("Equal", 7, 9))
sketch4.addConstraint(Sketcher.Constraint("Equal", 11, 13))
sketch4.addConstraint(Sketcher.Constraint("Equal", 15, 17))
sketch4.addConstraint(Sketcher.Constraint("Equal", 19, 21))
sketch4.addConstraint(Sketcher.Constraint("Equal", 23, 25))
sketch4.addConstraint(Sketcher.Constraint("DistanceX", 1, 2, 1, 1, Q("10 mm")))
sketch4.addConstraint(Sketcher.Constraint("DistanceY", 0, 2, 0, 1, Q("22 mm")))
sketch4.addConstraint(Sketcher.Constraint("DistanceY", -1, 1, 0, 2, Q("6 mm")))
sketch4.addConstraint(Sketcher.Constraint("DistanceX", -1, 1, 16, 2, Q("56 mm")))
sketch4.addConstraint(Sketcher.Constraint("DistanceX", -1, 1, 4, 2, Q("2.678502 mm")))
sketch4.addConstraint(Sketcher.Constraint("DistanceX", 0, 2, -1, 1, Q("15.095331 mm")))
sketch4.addConstraint(Sketcher.Constraint("DistanceX", -1, 1, 8, 2, Q("20.452334 mm")))
sketch4.addConstraint(Sketcher.Constraint("DistanceX", -1, 1, 12, 2, Q("38.226167 mm")))
sketch4.addConstraint(Sketcher.Constraint("DistanceX", 20, 2, -1, 1, Q("32.869164 mm")))
sketch4.addConstraint(Sketcher.Constraint("DistanceX", 24, 2, -1, 1, Q("50.642997 mm")))
pocket1 = body.newObject("PartDesign::Pocket", "Pocket")
pocket1.Profile = sketch4
pocket1.Type = "ThroughAll"
pocket1.Reversed = True

# Sketch on XZ plane
sketch5 = body.newObject("Sketcher::SketchObject", "Sketch004")
sketch5.AttachmentSupport = (doc.getObject("XZ_Plane"), [""])
sketch5.MapMode = "FlatFace"
sketch5.addGeometry(Part.Circle(V(-62.9, 53, 0), V(0, 0, 1), 1.6), False)
sketch5.addGeometry(Part.Circle(V(-28.9, 53, 0), V(0, 0, 1), 1.6), False)
sketch5.addGeometry(Part.Circle(V(63, 53, 0), V(0, 0, 1), 1.6), False)
sketch5.addGeometry(Part.Circle(V(25, 53, 0), V(0, 0, 1), 1.6), False)
sketch5.addConstraint(Sketcher.Constraint("Equal", 0, 1))
sketch5.addConstraint(Sketcher.Constraint("Equal", 1, 2))
sketch5.addConstraint(Sketcher.Constraint("Equal", 2, 3))
sketch5.addConstraint(Sketcher.Constraint("Horizontal", 0, 3, 1, 3))
sketch5.addConstraint(Sketcher.Constraint("Horizontal", 1, 3, 2, 3))
sketch5.addConstraint(Sketcher.Constraint("Horizontal", 2, 3, 3, 3))
sketch5.addConstraint(Sketcher.Constraint("Diameter", 0, Q("3.2 mm")))
sketch5.addConstraint(Sketcher.Constraint("DistanceY", -1, 1, 0, 3, Q("53 mm")))
sketch5.addConstraint(Sketcher.Constraint("DistanceX", -1, 1, 2, 3, Q("63 mm")))
sketch5.addConstraint(Sketcher.Constraint("DistanceX", -1, 1, 3, 3, Q("25 mm")))
sketch5.addConstraint(Sketcher.Constraint("DistanceX", 0, 3, 1, 3, Q("34 mm")))
sketch5.addConstraint(Sketcher.Constraint("DistanceX", 0, 3, -1, 1, Q("62.85 mm")))
pocket2 = body.newObject("PartDesign::Pocket", "Pocket001")
pocket2.Profile = sketch5
pocket2.Type = "ThroughAll"

# Sketch on XY plane
sketch6 = body.newObject("Sketcher::SketchObject", "Sketch005")
sketch6.AttachmentSupport = (doc.getObject("XY_Plane"), [""])
sketch6.MapMode = "FlatFace"
sketch6.AttachmentOffset = App.Placement(V(0, 0, 50), App.Rotation())
sketch6.addGeometry(Part.Circle(V(-46.1, 18, 0), V(0, 0, 1), 1.6), False)
sketch6.addGeometry(Part.Circle(V(59, 18, 0), V(0, 0, 1), 1.6), False)
sketch6.addConstraint(Sketcher.Constraint("Equal", 0, 1))
sketch6.addConstraint(Sketcher.Constraint("Horizontal", 0, 3, 1, 3))
sketch6.addConstraint(Sketcher.Constraint("Diameter", 0, Q("3.2 mm")))
sketch6.addConstraint(Sketcher.Constraint("DistanceY", -1, 1, 0, 3, Q("18 mm")))
sketch6.addConstraint(Sketcher.Constraint("DistanceX", -1, 1, 1, 3, Q("59 mm")))
sketch6.addConstraint(Sketcher.Constraint("DistanceX", 0, 3, -1, 1, Q("46.08 mm")))
pocket3 = body.newObject("PartDesign::Pocket", "Pocket002")
pocket3.Profile = sketch6
pocket3.Type = "ThroughAll"
pocket3.Reversed = True

doc.recompute()
